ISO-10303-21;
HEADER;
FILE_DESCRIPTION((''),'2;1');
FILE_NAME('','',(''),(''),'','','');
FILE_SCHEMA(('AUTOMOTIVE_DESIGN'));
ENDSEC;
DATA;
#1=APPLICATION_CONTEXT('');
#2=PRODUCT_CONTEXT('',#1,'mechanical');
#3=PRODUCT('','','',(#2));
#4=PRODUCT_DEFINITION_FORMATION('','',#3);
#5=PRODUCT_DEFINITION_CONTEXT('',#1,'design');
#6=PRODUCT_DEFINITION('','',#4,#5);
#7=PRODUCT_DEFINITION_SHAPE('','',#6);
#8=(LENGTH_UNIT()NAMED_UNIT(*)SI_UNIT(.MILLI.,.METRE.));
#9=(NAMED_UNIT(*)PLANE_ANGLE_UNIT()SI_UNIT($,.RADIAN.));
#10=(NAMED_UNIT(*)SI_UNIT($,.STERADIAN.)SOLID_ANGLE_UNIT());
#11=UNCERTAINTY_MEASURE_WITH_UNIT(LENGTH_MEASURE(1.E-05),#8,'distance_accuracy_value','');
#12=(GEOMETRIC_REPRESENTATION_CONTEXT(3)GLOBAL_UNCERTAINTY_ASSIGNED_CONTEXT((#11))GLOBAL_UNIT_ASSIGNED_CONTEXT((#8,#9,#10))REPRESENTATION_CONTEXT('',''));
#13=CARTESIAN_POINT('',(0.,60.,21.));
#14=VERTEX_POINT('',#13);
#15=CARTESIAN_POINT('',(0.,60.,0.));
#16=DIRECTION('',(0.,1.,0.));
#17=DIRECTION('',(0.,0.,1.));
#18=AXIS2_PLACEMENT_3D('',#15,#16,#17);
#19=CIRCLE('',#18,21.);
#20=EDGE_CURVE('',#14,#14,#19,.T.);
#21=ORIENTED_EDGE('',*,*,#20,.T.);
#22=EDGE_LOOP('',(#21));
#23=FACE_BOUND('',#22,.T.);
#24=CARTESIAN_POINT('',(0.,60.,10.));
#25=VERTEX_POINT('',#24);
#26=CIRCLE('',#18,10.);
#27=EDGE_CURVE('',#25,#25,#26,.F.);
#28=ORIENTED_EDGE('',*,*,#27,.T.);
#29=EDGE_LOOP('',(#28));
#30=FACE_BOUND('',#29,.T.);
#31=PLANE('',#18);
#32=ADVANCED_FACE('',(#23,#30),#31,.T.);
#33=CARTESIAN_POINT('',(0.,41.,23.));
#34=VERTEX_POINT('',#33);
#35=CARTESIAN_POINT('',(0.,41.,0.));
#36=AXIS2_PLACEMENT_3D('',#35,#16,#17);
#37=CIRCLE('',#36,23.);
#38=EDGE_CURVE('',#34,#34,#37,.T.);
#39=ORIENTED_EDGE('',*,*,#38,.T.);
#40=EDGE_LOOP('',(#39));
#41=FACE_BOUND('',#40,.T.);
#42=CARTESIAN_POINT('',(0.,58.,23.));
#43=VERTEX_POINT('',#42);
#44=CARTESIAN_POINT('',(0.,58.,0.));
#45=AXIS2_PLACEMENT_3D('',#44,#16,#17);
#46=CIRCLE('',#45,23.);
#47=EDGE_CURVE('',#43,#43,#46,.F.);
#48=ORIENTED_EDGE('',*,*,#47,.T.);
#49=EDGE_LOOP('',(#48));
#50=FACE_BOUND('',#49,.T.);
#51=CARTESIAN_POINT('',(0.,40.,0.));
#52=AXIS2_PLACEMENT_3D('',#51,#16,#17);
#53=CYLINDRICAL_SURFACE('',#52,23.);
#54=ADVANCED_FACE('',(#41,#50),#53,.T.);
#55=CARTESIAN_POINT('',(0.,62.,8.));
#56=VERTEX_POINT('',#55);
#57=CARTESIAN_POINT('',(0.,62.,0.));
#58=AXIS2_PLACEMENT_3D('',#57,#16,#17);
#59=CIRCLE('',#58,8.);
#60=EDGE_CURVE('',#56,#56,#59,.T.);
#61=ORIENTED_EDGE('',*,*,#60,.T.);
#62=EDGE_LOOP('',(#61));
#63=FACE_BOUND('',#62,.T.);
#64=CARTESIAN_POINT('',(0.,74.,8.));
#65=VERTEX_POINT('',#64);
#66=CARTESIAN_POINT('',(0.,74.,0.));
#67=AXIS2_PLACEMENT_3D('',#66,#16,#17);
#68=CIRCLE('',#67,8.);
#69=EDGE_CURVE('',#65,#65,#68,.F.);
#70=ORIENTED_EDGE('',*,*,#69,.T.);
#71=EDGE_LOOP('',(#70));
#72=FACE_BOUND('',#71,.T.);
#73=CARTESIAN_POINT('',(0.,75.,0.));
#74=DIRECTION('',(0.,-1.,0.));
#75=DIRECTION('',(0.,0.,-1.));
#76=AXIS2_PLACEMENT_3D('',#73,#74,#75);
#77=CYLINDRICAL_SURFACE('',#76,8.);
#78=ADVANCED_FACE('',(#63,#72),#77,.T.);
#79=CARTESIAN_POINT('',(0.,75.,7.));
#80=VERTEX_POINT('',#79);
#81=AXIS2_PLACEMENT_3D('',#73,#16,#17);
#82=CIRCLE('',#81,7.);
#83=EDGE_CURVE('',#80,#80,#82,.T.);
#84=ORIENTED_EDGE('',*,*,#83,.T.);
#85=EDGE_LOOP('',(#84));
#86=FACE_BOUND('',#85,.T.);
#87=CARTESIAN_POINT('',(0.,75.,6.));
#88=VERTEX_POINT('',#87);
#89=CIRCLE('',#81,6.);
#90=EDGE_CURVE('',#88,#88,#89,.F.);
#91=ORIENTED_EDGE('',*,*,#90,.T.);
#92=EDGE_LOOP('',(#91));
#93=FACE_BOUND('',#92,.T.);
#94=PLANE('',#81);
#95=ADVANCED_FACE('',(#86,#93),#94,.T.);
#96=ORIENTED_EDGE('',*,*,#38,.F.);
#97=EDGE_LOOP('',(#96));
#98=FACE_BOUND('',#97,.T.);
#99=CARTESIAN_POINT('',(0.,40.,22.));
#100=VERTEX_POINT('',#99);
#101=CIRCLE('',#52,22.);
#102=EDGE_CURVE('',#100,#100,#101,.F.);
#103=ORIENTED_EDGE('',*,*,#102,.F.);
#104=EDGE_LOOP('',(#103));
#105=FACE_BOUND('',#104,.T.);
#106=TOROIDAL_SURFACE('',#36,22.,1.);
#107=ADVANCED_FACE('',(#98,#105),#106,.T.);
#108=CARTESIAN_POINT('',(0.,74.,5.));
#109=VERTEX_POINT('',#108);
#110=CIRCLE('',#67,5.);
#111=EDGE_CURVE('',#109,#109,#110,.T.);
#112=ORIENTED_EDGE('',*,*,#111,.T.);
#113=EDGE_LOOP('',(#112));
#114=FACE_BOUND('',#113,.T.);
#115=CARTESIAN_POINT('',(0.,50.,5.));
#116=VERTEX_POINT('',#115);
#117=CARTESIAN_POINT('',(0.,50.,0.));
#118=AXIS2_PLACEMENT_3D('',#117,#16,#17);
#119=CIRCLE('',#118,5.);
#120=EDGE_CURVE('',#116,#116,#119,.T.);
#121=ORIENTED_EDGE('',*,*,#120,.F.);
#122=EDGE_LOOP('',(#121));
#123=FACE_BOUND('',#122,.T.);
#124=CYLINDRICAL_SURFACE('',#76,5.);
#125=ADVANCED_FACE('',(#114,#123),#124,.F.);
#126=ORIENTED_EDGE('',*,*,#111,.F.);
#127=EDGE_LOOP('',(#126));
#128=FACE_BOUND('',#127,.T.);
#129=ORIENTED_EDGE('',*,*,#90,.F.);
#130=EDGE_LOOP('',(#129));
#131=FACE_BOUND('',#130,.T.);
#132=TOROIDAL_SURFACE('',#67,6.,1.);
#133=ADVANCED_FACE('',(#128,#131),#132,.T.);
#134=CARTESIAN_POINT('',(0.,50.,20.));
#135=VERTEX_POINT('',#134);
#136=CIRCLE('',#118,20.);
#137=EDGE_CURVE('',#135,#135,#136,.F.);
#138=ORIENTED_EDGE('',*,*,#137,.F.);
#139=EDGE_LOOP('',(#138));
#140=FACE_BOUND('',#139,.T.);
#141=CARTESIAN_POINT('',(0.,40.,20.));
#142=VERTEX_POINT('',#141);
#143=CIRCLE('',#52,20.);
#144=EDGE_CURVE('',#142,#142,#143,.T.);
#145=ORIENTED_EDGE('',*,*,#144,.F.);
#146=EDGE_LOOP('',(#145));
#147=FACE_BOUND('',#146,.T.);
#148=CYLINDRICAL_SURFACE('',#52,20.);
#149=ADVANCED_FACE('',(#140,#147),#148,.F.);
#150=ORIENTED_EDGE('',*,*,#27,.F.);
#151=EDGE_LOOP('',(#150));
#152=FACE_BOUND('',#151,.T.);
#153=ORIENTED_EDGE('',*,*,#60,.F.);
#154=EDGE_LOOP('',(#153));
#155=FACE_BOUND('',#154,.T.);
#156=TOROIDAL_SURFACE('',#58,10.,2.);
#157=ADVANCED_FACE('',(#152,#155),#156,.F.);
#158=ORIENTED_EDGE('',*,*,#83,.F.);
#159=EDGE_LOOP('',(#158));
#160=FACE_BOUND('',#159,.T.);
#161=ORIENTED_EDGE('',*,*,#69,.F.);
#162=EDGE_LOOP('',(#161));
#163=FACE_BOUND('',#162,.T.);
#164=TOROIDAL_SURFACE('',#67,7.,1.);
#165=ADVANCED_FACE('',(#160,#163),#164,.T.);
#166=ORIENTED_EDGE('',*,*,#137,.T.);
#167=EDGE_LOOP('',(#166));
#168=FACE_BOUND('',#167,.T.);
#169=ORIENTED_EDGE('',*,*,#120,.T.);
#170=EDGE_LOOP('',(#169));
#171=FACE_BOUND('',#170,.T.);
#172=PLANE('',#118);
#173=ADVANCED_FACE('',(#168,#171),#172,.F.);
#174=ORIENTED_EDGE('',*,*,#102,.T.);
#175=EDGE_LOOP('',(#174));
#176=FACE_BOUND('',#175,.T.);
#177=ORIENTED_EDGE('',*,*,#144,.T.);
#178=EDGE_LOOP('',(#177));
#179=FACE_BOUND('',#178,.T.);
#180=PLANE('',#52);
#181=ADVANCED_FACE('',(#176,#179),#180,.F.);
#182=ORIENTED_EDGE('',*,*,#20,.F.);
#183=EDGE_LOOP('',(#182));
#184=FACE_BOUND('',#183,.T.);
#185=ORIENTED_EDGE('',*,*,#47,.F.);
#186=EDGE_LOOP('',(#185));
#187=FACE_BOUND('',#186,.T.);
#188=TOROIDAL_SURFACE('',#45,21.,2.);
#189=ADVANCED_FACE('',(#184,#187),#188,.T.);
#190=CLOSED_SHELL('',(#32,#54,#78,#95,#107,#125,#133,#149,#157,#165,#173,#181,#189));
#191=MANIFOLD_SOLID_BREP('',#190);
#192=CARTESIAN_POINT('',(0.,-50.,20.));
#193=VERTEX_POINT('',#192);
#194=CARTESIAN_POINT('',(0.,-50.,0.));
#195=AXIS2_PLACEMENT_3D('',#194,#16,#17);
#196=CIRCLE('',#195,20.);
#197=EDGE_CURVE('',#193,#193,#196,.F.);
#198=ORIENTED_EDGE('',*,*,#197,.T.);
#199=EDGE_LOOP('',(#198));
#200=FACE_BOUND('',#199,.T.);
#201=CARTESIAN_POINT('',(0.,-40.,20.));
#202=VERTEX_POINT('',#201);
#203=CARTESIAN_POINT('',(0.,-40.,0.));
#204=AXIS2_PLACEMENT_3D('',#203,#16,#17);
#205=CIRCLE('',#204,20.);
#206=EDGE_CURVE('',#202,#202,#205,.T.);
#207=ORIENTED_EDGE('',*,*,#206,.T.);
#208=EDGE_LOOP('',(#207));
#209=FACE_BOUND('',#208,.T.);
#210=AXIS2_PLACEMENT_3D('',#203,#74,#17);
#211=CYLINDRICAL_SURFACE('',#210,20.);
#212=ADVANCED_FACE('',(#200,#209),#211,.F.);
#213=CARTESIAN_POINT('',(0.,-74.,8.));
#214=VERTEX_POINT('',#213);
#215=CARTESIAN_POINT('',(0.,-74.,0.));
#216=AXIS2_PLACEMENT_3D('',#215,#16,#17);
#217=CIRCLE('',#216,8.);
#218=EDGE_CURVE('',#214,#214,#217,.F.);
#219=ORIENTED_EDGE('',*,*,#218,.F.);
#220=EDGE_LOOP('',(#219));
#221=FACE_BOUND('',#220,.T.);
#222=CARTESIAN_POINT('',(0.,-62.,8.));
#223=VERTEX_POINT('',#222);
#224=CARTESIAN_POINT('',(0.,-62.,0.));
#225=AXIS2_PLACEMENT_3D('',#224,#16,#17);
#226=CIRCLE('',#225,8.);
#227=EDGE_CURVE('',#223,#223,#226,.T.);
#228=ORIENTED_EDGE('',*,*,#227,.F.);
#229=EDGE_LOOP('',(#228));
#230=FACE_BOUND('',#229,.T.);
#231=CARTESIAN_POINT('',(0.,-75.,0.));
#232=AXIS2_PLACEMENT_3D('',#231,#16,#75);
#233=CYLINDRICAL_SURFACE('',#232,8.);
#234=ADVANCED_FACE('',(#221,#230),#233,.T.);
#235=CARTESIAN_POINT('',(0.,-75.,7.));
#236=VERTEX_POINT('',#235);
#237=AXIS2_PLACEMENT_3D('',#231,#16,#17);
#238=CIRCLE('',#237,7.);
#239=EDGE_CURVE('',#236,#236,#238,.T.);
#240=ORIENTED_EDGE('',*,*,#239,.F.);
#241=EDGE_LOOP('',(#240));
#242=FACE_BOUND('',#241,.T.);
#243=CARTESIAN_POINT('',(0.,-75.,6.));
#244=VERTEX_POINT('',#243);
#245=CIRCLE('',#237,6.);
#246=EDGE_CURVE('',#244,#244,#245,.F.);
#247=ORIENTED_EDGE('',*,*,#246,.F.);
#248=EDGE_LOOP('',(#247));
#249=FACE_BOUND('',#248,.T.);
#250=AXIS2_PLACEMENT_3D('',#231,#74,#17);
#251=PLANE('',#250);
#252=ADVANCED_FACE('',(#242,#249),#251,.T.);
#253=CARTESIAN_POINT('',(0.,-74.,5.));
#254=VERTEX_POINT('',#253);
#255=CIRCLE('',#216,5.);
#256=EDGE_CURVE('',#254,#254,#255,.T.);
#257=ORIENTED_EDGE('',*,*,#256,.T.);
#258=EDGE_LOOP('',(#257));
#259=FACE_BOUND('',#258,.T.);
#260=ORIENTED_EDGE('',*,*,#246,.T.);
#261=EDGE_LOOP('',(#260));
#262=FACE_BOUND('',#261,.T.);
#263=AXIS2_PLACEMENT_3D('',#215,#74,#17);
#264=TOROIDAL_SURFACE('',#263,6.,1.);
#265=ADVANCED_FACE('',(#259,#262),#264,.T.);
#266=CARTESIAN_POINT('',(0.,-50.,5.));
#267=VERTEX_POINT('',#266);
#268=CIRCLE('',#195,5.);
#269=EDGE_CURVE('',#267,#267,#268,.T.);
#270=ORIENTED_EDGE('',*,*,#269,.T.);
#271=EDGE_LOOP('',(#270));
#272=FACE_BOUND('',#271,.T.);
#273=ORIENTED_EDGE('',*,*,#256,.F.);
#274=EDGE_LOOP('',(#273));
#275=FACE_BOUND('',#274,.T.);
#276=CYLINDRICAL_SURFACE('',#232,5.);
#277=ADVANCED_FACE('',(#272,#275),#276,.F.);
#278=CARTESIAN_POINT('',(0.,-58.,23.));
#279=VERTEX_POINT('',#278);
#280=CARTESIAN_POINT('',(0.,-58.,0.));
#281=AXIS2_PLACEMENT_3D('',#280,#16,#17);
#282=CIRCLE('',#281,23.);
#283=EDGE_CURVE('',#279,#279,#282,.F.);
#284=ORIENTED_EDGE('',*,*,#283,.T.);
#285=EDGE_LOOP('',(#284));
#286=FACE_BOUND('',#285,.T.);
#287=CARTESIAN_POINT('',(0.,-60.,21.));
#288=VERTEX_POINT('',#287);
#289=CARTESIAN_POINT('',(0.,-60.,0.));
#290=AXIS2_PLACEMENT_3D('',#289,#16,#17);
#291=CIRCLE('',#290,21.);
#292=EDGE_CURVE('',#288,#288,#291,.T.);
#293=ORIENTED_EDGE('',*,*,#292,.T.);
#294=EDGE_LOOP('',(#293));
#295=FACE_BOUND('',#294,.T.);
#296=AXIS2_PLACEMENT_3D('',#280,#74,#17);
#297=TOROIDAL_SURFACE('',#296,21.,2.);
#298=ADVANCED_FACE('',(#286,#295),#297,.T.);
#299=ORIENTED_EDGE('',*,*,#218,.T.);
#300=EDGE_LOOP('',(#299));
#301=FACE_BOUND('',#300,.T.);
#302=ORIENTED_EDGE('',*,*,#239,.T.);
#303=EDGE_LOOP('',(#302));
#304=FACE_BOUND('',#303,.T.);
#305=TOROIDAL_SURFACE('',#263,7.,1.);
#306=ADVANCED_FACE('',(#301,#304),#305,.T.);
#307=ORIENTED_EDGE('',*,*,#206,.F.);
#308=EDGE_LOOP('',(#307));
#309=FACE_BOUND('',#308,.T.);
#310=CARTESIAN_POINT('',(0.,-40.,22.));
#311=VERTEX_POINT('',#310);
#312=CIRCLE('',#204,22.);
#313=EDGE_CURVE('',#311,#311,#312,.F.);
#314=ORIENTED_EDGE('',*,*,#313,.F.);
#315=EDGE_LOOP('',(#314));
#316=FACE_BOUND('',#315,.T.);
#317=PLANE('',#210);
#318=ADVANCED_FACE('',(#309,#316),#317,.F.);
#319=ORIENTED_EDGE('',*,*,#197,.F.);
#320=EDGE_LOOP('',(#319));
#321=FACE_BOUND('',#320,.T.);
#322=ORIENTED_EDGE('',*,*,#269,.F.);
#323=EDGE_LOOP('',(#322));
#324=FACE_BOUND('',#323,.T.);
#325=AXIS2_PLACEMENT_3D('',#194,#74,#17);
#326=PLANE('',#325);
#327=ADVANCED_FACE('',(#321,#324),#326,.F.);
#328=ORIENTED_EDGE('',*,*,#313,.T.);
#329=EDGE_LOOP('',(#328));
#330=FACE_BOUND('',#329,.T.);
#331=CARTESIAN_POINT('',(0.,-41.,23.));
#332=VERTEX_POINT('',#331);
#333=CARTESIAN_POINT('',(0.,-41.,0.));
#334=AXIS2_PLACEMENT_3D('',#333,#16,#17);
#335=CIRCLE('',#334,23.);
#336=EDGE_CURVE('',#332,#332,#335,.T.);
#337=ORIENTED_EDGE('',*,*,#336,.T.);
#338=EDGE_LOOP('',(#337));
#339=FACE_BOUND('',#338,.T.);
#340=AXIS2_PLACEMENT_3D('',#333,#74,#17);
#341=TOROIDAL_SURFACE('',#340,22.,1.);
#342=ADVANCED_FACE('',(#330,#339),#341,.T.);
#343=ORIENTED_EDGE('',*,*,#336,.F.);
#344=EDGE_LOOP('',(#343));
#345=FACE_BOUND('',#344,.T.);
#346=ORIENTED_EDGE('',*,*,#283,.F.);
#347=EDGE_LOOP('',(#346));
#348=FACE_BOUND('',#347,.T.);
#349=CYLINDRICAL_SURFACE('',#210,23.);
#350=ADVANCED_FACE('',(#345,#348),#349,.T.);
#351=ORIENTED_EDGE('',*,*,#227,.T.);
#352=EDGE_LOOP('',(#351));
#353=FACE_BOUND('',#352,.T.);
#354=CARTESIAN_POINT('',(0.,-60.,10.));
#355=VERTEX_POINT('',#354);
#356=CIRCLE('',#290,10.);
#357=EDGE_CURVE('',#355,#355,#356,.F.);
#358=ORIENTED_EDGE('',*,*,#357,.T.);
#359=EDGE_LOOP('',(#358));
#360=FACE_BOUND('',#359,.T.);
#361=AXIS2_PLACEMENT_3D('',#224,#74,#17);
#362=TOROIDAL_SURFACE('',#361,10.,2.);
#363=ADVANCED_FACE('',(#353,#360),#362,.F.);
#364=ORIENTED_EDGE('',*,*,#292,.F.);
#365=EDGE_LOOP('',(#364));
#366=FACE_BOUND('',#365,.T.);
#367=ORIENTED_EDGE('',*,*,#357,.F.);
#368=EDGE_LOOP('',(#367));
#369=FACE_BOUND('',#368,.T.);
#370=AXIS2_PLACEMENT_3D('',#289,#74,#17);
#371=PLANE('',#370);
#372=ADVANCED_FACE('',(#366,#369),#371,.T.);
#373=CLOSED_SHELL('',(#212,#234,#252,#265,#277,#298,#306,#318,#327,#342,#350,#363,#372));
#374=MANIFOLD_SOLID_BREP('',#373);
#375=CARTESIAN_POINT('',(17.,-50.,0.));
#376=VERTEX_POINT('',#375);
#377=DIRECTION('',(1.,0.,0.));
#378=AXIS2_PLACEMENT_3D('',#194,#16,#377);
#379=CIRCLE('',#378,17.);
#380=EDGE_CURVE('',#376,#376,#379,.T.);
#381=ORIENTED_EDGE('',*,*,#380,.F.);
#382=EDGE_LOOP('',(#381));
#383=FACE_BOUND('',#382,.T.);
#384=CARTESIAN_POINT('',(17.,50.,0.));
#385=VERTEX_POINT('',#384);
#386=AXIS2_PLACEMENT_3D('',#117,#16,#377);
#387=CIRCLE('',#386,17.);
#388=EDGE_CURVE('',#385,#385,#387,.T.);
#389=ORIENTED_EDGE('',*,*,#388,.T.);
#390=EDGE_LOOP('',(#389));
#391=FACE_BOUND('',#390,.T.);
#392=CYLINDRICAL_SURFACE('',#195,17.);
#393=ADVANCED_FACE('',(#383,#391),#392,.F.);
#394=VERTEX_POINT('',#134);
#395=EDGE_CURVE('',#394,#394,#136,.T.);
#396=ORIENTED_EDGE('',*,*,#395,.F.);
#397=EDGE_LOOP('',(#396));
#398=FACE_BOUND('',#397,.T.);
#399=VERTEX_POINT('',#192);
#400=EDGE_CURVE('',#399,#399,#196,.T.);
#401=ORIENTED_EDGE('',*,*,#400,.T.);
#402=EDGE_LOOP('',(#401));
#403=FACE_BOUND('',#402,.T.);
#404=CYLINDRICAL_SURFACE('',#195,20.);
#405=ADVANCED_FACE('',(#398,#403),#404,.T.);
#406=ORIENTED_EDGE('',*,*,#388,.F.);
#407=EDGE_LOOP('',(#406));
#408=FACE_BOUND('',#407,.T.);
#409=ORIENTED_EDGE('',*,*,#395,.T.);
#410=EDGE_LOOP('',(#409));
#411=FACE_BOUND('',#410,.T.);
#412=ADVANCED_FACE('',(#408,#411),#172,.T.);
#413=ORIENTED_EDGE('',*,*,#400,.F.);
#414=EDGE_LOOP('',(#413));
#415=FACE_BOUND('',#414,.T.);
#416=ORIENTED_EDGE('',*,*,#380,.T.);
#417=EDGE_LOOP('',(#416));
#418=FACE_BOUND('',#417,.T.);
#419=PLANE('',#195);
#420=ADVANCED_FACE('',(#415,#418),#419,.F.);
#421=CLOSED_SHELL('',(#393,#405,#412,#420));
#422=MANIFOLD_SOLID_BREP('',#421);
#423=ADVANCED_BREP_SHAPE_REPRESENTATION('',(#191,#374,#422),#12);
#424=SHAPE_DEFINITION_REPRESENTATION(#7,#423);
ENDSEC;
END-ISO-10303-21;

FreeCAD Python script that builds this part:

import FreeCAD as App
import Part
import Sketcher
from FreeCAD import Vector


def edges_at(feature, points):
    """Names of the edges that pass closest to the given points."""
    edges = feature.Shape.Edges
    near = lambda p: min(range(len(edges)), key=lambda i: edges[i].distToShape(Part.Vertex(*p))[0])
    return sorted({f"Edge{near(p) + 1}" for p in points})

doc = App.newDocument("Part")
body = doc.addObject("PartDesign::Body", "Body")

# Sketch on XZ plane
sketch1 = body.newObject("Sketcher::SketchObject", "Sketch")
sketch1.AttachmentSupport = (doc.getObject("XZ_Plane"), [""])
sketch1.MapMode = "FlatFace"
sketch1.addGeometry([
    Part.Circle(Vector(0, 0, 0), Vector(0, 0, 1), 20),
    Part.Circle(Vector(0, 0, 0), Vector(0, 0, 1), 17),
], False)
sketch1.addConstraint([
    Sketcher.Constraint("Coincident", 0, 3, -1, 1),
    Sketcher.Constraint("Coincident", 1, 3, -1, 1),
    Sketcher.Constraint("Diameter", 0, 40.0),
    Sketcher.Constraint("Diameter", 1, 34.0),
])
pad1 = body.newObject("PartDesign::Pad", "Pad")
pad1.Profile = sketch1
pad1.Type = "TwoLengths"
pad1.Length = 50
pad1.Length2 = 50
pad1.Reversed = True
body2 = doc.addObject("PartDesign::Body", "Body001")

# Sketch on XZ plane
sketch2 = body2.newObject("Sketcher::SketchObject", "Sketch001")
sketch2.AttachmentSupport = (doc.getObject("XZ_Plane001"), [""])
sketch2.MapMode = "FlatFace"
sketch2.AttachmentOffset = App.Placement(Vector(0, 0, -50), App.Rotation())
sketch2.addGeometry([
    Part.Circle(Vector(0, 0, 0), Vector(0, 0, 1), 23),
    Part.Circle(Vector(0, 0, 0), Vector(0, 0, 1), 20),
], False)
sketch2.addConstraint([
    Sketcher.Constraint("Coincident", 0, 3, -1, 1),
    Sketcher.Constraint("Coincident", 1, 3, -1, 1),
    Sketcher.Constraint("Diameter", 0, 46.0),
    Sketcher.Constraint("Diameter", 1, 40.0),
])
pad2 = body2.newObject("PartDesign::Pad", "Pad001")
pad2.Profile = sketch2
pad2.Length = 10

# Sketch on XZ plane
sketch3 = body2.newObject("Sketcher::SketchObject", "Sketch002")
sketch3.AttachmentSupport = (doc.getObject("XZ_Plane001"), [""])
sketch3.MapMode = "FlatFace"
sketch3.AttachmentOffset = App.Placement(Vector(0, 0, -50), App.Rotation())
sketch3.addGeometry(Part.Circle(Vector(0, 0, 0), Vector(0, 0, 1), 23), False)
sketch3.addConstraint([
    Sketcher.Constraint("Coincident", 0, 3, -1, 1),
    Sketcher.Constraint("Diameter", 0, 46.0),
])
pad3 = body2.newObject("PartDesign::Pad", "Pad002")
pad3.Profile = sketch3
pad3.Length = 10
pad3.Reversed = True

# Sketch on XZ plane
sketch4 = body2.newObject("Sketcher::SketchObject", "Sketch003")
sketch4.AttachmentSupport = (doc.getObject("XZ_Plane001"), [""])
sketch4.MapMode = "FlatFace"
sketch4.AttachmentOffset = App.Placement(Vector(0, 0, -60), App.Rotation())
sketch4.addGeometry([
    Part.Circle(Vector(0, 0, 0), Vector(0, 0, 1), 8),
    Part.Circle(Vector(0, 0, 0), Vector(0, 0, 1), 5),
], False)
sketch4.addConstraint([
    Sketcher.Constraint("Coincident", 0, 3, -1, 1),
    Sketcher.Constraint("Coincident", 1, 3, -1, 1),
    Sketcher.Constraint("Diameter", 0, 16.0),
    Sketcher.Constraint("Diameter", 1, 10.0),
])
pad4 = body2.newObject("PartDesign::Pad", "Pad003")
pad4.Profile = sketch4
pad4.Length = 15
pad4.Reversed = True

# Sketch on XZ plane
sketch5 = body2.newObject("Sketcher::SketchObject", "Sketch004")
sketch5.AttachmentSupport = (doc.getObject("XZ_Plane001"), [""])
sketch5.MapMode = "FlatFace"
sketch5.AttachmentOffset = App.Placement(Vector(0, 0, -60), App.Rotation())
sketch5.addGeometry(Part.Circle(Vector(0, 0, 0), Vector(0, 0, 1), 5), False)
sketch5.addConstraint([
    Sketcher.Constraint("Coincident", 0, 3, -1, 1),
    Sketcher.Constraint("Diameter", 0, 10.0),
])
pocket1 = body2.newObject("PartDesign::Pocket", "Pocket")
pocket1.Profile = sketch5
pocket1.Length = 20
pocket1.Reversed = True
doc.recompute()

fillet = body2.newObject("PartDesign::Fillet", "Fillet")
fillet.Base = (pocket1, edges_at(pocket1, [(0, 60, -23), (0, 60, -8)]))
fillet.Radius = 2
doc.recompute()

fillet2 = body2.newObject("PartDesign::Fillet", "Fillet001")
fillet2.Base = (fillet, edges_at(fillet, [(0, 75, -8), (0, 75, -5), (0, 40, -23)]))
fillet2.Radius = 1
body3 = doc.addObject("PartDesign::Body", "Body002")
doc.recompute()

mirroring = doc.addObject("Part::Mirroring", "Mirroring")
mirroring.Source = body2
mirroring.Base = Vector(0, 0, 0)
mirroring.Normal = Vector(0, 1, 0)
body3.BaseFeature = mirroring
doc.recompute()
mirroring.Visibility = False

doc.recompute()
